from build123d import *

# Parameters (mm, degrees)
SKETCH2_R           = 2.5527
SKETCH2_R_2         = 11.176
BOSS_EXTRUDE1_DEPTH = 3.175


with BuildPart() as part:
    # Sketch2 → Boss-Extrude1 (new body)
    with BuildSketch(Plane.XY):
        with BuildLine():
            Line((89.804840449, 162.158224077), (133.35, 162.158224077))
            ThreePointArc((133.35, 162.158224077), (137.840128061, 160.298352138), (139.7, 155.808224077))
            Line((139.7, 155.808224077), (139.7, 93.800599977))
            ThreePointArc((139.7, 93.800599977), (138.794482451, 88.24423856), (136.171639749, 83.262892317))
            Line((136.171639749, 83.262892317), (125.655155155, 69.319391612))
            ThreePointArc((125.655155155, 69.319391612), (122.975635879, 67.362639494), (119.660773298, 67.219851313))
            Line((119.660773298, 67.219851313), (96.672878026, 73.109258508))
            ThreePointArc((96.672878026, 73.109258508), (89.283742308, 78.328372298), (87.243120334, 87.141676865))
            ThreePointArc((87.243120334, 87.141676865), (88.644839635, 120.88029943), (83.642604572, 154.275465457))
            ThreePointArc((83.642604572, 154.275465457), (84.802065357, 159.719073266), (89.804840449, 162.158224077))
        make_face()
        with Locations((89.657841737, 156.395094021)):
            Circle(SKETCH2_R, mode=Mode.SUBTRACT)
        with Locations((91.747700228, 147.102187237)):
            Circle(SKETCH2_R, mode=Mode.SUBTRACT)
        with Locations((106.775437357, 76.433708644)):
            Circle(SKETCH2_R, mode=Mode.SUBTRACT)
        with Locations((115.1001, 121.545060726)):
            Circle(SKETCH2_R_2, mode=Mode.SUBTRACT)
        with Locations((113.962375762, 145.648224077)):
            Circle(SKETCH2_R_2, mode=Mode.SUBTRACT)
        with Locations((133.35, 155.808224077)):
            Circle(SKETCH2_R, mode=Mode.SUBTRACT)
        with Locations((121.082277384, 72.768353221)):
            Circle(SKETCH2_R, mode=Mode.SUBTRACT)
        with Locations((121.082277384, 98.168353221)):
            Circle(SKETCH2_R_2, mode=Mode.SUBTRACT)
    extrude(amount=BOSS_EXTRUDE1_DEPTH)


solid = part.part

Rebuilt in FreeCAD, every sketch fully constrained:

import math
import FreeCAD as App
import Part
import Sketcher

V = App.Vector
Q = App.Units.Quantity

doc = App.newDocument("Part")
body = doc.addObject("PartDesign::Body", "Body")

sketch1 = body.newObject("Sketcher::SketchObject", "Sketch")
sketch1.AttachmentSupport = (doc.getObject("XY_Plane"), [""])
sketch1.MapMode = "FlatFace"
sketch1.addGeometry(Part.LineSegment(V(133.3, 162.2, 0), V(89.8, 162.2, 0)), False)
sketch1.addGeometry(Part.ArcOfCircle(Part.Circle(V(89.8, 155.8, 0), V(0, 0, 1), 6.3), math.radians(90), math.radians(194)), False)
sketch1.addGeometry(Part.ArcOfCircle(Part.Circle(V(-88.9, 111.4, 0), V(0, 0, 1), 177.8), math.radians(-8), math.radians(14)), False)
sketch1.addGeometry(Part.ArcOfCircle(Part.Circle(V(99.8, 85.4, 0), V(0, 0, 1), 12.7), math.radians(172), math.radians(256)), False)
sketch1.addGeometry(Part.LineSegment(V(96.7, 73.1, 0), V(119.7, 67.2, 0)), False)
sketch1.addGeometry(Part.ArcOfCircle(Part.Circle(V(121.1, 72.8, 0), V(0, 0, 1), 5.7), math.radians(-104), math.radians(-37)), False)
sketch1.addGeometry(Part.LineSegment(V(125.7, 69.3, 0), V(136.2, 83.3, 0)), False)
sketch1.addGeometry(Part.ArcOfCircle(Part.Circle(V(122.2, 93.8, 0), V(0, 0, 1), 17.5), math.radians(-37), math.radians(0)), False)
sketch1.addGeometry(Part.LineSegment(V(139.7, 93.8, 0), V(139.7, 155.8, 0)), False)
sketch1.addGeometry(Part.ArcOfCircle(Part.Circle(V(133.4, 155.8, 0), V(0, 0, 1), 6.3), math.radians(0), math.radians(90)), False)
sketch1.addGeometry(Part.Circle(V(121.1, 72.8, 0), V(0, 0, 1), 2.6), False)
sketch1.addGeometry(Part.Circle(V(121.1, 98.2, 0), V(0, 0, 1), 11.2), False)
sketch1.addGeometry(Part.Circle(V(106.8, 76.4, 0), V(0, 0, 1), 2.6), False)
sketch1.addGeometry(Part.Circle(V(115.1, 121.5, 0), V(0, 0, 1), 11.2), False)
sketch1.addGeometry(Part.Circle(V(133.3, 155.8, 0), V(0, 0, 1), 2.6), False)
sketch1.addGeometry(Part.Circle(V(114, 145.6, 0), V(0, 0, 1), 11.2), False)
sketch1.addGeometry(Part.Circle(V(91.7, 147.1, 0), V(0, 0, 1), 2.6), False)
sketch1.addGeometry(Part.Circle(V(89.7, 156.4, 0), V(0, 0, 1), 2.6), False)
sketch1.addConstraint(Sketcher.Constraint("Tangent", 0, 2, 1, 1))
sketch1.addConstraint(Sketcher.Constraint("Tangent", 1, 2, 2, 2))
sketch1.addConstraint(Sketcher.Constraint("Tangent", 2, 1, 3, 1))
sketch1.addConstraint(Sketcher.Constraint("Tangent", 3, 2, 4, 1))
sketch1.addConstraint(Sketcher.Constraint("Tangent", 4, 2, 5, 1))
sketch1.addConstraint(Sketcher.Constraint("Tangent", 5, 2, 6, 1))
sketch1.addConstraint(Sketcher.Constraint("Tangent", 6, 2, 7, 1))
sketch1.addConstraint(Sketcher.Constraint("Tangent", 7, 2, 8, 1))
sketch1.addConstraint(Sketcher.Constraint("Tangent", 8, 2, 9, 1))
sketch1.addConstraint(Sketcher.Constraint("Tangent", 9, 2, 0, 1))
sketch1.addConstraint(Sketcher.Constraint("Horizontal", 0))
sketch1.addConstraint(Sketcher.Constraint("Vertical", 8))
sketch1.addConstraint(Sketcher.Constraint("Coincident", 10, 3, 5, 3))
sketch1.addConstraint(Sketcher.Constraint("Coincident", 14, 3, 9, 3))
sketch1.addConstraint(Sketcher.Constraint("Equal", 1, 9))
sketch1.addConstraint(Sketcher.Constraint("Equal", 10, 12))
sketch1.addConstraint(Sketcher.Constraint("Equal", 11, 13))
sketch1.addConstraint(Sketcher.Constraint("Equal", 12, 14))
sketch1.addConstraint(Sketcher.Constraint("Equal", 13, 15))
sketch1.addConstraint(Sketcher.Constraint("Equal", 14, 16))
sketch1.addConstraint(Sketcher.Constraint("Equal", 16, 17))
sketch1.addConstraint(Sketcher.Constraint("Vertical", 10, 3, 11, 3))
sketch1.addConstraint(Sketcher.Constraint("Radius", 2, Q("7 in")))
sketch1.addConstraint(Sketcher.Constraint("Radius", 3, Q("0.5 in")))
sketch1.addConstraint(Sketcher.Constraint("Diameter", 11, Q("0.88 in")))
sketch1.addConstraint(Sketcher.Constraint("Radius", 1, Q("0.25 in")))
sketch1.addConstraint(Sketcher.Constraint("Diameter", 10, Q("0.201 in")))
sketch1.addConstraint(Sketcher.Constraint("DistanceY", 5, 3, 11, 3, Q("1 in")))
sketch1.addConstraint(Sketcher.Constraint("DistanceX", 2, 3, -1, 1, Q("3.5 in")))
sketch1.addConstraint(Sketcher.Constraint("DistanceX", -1, 1, 7, 2, Q("5.5 in")))
sketch1.addConstraint(Sketcher.Constraint("Radius", 5, Q("0.2255 in")))
sketch1.addConstraint(Sketcher.Constraint("DistanceY", 15, 3, 14, 3, Q("0.4 in")))
sketch1.addConstraint(Sketcher.Constraint("Radius", 7, Q("17.5 mm")))
sketch1.addConstraint(Sketcher.Constraint("DistanceY", 2, 3, 1, 3, Q("1.75 in")))
sketch1.addConstraint(Sketcher.Constraint("DistanceX", 3, 2, 5, 3, Q("0.961 in")))
sketch1.addConstraint(Sketcher.Constraint("DistanceX", -1, 1, 13, 3, Q("4.5315 in")))
sketch1.addConstraint(Sketcher.Constraint("DistanceY", -1, 1, 7, 3, Q("93.8006 mm")))
sketch1.addConstraint(Sketcher.Constraint("DistanceX", -1, 1, 16, 3, Q("91.7477 mm")))
sketch1.addConstraint(Sketcher.Constraint("DistanceY", 3, 3, 1, 3, Q("70.396301 mm")))
sketch1.addConstraint(Sketcher.Constraint("DistanceX", 15, 3, 11, 3, Q("7.119902 mm")))
sketch1.addConstraint(Sketcher.Constraint("DistanceX", 17, 3, 1, 3, Q("0.146999 mm")))
sketch1.addConstraint(Sketcher.Constraint("DistanceY", 4, 2, 5, 3, Q("5.548502 mm")))
sketch1.addConstraint(Sketcher.Constraint("DistanceY", 5, 2, 6, 2, Q("13.943501 mm")))
sketch1.addConstraint(Sketcher.Constraint("DistanceY", -1, 1, 12, 3, Q("76.433709 mm")))
sketch1.addConstraint(Sketcher.Constraint("DistanceY", -1, 1, 13, 3, Q("121.545061 mm")))
sketch1.addConstraint(Sketcher.Constraint("DistanceX", 12, 3, 5, 3, Q("14.30684 mm")))
sketch1.addConstraint(Sketcher.Constraint("DistanceY", 1, 3, 17, 3, Q("0.58687 mm")))
sketch1.addConstraint(Sketcher.Constraint("DistanceY", 16, 3, 1, 2, Q("7.173278 mm")))
pad1 = body.newObject("PartDesign::Pad", "Pad")
pad1.Profile = sketch1
pad1.Length = Q("0.125 in")

doc.recompute()
